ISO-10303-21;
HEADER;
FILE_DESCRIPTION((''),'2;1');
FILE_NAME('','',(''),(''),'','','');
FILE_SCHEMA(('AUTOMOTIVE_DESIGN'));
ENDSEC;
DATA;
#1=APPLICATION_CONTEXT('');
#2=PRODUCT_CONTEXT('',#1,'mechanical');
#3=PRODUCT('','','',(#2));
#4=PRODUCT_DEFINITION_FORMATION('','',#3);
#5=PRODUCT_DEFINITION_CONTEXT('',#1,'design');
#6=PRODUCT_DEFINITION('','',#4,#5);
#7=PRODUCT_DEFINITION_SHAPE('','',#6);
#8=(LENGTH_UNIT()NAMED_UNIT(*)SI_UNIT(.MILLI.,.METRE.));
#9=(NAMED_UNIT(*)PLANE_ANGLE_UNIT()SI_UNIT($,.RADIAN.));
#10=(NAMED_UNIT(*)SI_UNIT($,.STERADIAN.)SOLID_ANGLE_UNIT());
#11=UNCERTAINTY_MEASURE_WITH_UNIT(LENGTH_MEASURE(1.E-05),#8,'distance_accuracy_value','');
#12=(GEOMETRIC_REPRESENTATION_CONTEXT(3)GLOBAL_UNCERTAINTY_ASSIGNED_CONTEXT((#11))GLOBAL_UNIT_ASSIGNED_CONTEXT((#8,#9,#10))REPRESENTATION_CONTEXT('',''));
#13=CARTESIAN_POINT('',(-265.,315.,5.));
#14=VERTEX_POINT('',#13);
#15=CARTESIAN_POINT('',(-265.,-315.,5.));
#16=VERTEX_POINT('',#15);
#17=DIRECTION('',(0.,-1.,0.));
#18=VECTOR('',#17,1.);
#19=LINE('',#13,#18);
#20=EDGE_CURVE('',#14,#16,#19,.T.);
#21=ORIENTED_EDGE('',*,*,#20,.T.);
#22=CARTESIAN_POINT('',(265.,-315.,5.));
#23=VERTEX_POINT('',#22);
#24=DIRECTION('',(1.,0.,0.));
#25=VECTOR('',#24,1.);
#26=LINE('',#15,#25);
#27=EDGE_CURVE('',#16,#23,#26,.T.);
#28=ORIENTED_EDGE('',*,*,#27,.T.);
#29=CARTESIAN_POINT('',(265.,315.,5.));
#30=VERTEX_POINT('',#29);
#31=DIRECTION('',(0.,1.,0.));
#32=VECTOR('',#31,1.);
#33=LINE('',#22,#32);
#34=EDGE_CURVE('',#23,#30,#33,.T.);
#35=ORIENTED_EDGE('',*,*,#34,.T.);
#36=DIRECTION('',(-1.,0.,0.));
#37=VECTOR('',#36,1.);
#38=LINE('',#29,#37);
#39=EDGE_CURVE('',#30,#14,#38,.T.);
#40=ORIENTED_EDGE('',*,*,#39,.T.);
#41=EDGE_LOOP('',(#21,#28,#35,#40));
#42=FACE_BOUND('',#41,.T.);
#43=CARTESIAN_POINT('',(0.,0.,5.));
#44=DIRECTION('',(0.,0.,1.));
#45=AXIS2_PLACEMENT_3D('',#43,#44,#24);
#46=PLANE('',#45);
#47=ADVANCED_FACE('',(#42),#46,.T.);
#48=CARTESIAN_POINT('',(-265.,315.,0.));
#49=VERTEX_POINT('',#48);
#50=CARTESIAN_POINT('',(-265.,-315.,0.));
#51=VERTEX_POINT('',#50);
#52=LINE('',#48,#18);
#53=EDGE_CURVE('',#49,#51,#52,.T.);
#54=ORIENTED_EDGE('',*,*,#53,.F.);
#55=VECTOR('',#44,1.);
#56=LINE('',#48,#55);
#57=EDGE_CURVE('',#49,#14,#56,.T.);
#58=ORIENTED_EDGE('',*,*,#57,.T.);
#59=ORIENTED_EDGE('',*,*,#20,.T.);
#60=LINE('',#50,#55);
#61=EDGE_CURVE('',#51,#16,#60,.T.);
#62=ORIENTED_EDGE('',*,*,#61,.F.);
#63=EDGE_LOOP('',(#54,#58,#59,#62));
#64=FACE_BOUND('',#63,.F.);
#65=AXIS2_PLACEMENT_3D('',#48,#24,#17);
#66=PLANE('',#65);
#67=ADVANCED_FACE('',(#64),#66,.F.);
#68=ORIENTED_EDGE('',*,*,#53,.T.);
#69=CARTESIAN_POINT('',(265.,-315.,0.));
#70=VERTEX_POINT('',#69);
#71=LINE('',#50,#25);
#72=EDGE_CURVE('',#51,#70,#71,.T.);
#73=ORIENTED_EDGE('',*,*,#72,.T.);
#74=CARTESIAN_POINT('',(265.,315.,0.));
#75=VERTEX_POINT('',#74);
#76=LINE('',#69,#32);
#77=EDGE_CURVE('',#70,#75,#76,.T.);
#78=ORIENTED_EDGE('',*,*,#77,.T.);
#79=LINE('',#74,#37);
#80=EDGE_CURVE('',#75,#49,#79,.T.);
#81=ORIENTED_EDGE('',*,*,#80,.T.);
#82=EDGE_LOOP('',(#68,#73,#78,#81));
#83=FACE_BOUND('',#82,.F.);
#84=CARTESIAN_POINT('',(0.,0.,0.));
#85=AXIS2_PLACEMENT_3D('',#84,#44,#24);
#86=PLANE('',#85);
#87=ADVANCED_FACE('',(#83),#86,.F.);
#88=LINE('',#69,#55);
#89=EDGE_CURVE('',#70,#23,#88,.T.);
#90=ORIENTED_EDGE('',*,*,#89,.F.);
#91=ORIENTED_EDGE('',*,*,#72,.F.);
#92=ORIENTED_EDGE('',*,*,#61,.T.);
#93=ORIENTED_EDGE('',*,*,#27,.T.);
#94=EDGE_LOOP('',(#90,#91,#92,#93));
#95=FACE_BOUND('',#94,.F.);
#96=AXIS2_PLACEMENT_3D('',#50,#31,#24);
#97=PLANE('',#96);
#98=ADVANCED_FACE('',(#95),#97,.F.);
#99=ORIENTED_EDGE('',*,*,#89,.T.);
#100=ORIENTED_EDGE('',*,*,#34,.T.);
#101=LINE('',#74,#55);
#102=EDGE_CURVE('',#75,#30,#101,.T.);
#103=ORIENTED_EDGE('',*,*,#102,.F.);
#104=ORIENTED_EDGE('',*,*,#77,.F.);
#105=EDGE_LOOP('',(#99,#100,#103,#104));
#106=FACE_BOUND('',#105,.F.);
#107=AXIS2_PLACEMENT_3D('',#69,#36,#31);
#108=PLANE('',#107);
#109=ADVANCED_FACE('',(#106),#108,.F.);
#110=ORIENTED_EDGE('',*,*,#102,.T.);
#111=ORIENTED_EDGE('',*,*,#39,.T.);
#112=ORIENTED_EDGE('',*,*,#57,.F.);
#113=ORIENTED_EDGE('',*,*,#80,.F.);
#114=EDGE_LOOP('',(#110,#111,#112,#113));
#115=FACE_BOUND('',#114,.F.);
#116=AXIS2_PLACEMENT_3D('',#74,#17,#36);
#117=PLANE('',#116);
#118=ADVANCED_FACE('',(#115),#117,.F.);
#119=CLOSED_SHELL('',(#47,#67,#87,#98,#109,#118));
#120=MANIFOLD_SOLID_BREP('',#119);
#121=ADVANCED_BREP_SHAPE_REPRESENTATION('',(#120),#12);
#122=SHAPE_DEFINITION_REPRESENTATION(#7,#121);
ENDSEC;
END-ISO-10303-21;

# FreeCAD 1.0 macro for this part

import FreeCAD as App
import Part
import Sketcher

V = App.Vector


def add_polygon(sketch, points):
    """Adds a closed chain of lines whose ends are joined by coincident constraints."""
    first, n = sketch.GeometryCount, len(points)
    for a, b in zip(points, points[1:] + points[:1]):
        sketch.addGeometry(Part.LineSegment(App.Vector(*a, 0), App.Vector(*b, 0)), False)
    for i in range(n):
        sketch.addConstraint(Sketcher.Constraint("Coincident", first + i, 2, first + (i + 1) % n, 1))

doc = App.newDocument("Part")
body = doc.addObject("PartDesign::Body", "Body")

# Sketch on XY plane
sketch1 = doc.addObject("Sketcher::SketchObject", "Sketch")
body.addObject(sketch1)
sketch1.AttachmentSupport = (doc.XY_Plane, [""])
sketch1.MapMode = "FlatFace"
add_polygon(sketch1, [(-265, 315), (-265, -315), (265, -315), (265, 315)])  # lines 0-3
sketch1.addConstraint([
    Sketcher.Constraint("Vertical", 0),
    Sketcher.Constraint("Horizontal", 1),
    Sketcher.Constraint("Vertical", 2),
    Sketcher.Constraint("Horizontal", 3),
    Sketcher.Constraint("Symmetric", 0, 2, 2, 2, -1, 1),
    Sketcher.Constraint("DistanceX", 1, 1, 1, 2, 530.0),
    Sketcher.Constraint("DistanceY", 0, 2, 0, 1, 630.0),
])
pad1 = doc.addObject("PartDesign::Pad", "Pad")
body.addObject(pad1)
pad1.Profile = sketch1
pad1.Length = 5

doc.recompute()
